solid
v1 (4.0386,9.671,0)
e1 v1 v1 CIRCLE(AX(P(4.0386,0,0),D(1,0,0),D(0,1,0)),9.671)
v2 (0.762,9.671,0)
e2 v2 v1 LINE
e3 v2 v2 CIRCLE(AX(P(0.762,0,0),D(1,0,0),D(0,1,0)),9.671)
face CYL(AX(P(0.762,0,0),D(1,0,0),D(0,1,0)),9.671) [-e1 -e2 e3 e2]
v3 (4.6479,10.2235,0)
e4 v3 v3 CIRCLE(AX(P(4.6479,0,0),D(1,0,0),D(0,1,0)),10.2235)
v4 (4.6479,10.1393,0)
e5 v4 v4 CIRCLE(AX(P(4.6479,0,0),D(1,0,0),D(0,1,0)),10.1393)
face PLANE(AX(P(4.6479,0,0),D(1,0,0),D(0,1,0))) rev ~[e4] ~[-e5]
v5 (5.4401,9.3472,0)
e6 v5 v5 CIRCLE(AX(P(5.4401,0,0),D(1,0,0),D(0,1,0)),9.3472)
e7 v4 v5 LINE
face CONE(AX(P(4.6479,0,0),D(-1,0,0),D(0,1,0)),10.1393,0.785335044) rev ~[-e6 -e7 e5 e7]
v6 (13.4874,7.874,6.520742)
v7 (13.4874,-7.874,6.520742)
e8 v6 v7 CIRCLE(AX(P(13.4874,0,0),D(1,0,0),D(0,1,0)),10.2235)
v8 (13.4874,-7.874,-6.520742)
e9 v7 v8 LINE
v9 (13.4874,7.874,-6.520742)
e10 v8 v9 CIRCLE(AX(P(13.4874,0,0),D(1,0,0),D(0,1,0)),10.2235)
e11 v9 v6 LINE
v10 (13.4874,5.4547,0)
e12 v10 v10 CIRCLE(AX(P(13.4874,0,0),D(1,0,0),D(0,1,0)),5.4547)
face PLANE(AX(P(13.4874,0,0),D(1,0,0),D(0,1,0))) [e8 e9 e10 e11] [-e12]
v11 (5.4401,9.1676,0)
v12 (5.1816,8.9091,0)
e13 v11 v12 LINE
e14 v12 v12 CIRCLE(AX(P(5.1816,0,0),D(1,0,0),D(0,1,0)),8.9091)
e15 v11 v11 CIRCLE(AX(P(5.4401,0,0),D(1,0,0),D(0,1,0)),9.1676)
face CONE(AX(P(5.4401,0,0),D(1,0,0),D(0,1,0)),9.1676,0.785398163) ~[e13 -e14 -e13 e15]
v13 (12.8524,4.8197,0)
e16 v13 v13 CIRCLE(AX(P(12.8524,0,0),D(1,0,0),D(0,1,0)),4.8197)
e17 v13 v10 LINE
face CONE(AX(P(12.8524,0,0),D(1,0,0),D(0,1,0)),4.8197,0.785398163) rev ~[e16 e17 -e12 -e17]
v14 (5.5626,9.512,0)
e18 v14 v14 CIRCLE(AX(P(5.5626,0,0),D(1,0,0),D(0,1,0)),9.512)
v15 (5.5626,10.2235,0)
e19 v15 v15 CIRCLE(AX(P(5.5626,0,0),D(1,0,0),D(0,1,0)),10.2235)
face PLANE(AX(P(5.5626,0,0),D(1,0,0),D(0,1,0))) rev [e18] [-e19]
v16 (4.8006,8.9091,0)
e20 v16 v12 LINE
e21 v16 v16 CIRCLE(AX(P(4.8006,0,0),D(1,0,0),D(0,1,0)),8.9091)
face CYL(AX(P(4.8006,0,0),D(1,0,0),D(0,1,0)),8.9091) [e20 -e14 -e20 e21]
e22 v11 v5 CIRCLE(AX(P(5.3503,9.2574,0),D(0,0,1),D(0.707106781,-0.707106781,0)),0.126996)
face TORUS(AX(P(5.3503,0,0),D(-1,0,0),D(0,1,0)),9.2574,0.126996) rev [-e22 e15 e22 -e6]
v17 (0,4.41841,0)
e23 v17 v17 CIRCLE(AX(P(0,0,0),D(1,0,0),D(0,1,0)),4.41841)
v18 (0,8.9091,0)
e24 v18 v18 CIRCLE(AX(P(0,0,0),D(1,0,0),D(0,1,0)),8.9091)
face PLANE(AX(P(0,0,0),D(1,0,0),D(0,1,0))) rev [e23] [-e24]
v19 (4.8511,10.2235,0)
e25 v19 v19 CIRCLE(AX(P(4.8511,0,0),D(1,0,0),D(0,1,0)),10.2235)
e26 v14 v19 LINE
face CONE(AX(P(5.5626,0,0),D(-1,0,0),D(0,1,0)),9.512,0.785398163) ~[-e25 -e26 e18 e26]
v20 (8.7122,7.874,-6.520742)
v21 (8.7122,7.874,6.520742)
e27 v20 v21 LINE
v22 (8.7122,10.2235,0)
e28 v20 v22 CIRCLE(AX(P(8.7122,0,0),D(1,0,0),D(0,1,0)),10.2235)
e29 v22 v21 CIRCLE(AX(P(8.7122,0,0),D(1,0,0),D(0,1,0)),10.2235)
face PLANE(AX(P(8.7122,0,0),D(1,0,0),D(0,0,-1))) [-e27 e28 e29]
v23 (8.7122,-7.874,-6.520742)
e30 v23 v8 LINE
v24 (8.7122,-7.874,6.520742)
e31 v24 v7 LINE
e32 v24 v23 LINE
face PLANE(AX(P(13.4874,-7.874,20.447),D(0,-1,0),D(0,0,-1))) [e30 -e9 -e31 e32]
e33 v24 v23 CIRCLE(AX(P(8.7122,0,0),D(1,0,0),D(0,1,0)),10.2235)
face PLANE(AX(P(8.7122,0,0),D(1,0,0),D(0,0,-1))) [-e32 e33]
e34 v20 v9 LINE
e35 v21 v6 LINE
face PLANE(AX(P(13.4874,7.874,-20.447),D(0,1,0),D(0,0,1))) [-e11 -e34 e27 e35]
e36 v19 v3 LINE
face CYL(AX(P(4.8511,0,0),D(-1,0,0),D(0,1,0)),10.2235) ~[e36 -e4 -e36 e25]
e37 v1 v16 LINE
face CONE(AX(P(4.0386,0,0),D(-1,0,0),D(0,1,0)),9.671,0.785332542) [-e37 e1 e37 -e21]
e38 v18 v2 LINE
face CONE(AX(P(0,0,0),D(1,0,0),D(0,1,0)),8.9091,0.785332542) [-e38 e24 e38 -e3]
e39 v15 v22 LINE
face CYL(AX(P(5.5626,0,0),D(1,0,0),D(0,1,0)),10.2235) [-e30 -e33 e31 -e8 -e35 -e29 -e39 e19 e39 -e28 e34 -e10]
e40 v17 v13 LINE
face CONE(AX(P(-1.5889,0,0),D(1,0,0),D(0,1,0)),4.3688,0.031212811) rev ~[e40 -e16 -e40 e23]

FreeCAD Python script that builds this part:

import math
import FreeCAD as App
import Part
import Sketcher
Q = App.Units.Quantity


def add_polygon(sketch, points):
    """Adds a closed chain of lines whose ends are joined by coincident constraints."""
    first, n = sketch.GeometryCount, len(points)
    for a, b in zip(points, points[1:] + points[:1]):
        sketch.addGeometry(Part.LineSegment(App.Vector(*a, 0), App.Vector(*b, 0)), False)
    for i in range(n):
        sketch.addConstraint(Sketcher.Constraint("Coincident", first + i, 2, first + (i + 1) % n, 1))

doc = App.newDocument("Part")
body = doc.addObject("PartDesign::Body", "Body")

sketch1 = body.newObject("Sketcher::SketchObject", "Sketch")
sketch1.AttachmentSupport = (doc.getObject("XY_Plane"), [""])
sketch1.MapMode = "FlatFace"
add_polygon(sketch1, [(0, 0), (13.4874, 0), (13.4874, 10.2235), (5.5626, 10.2235), (5.5626, 8.9091), (4.8006, 8.9091), (4.0386, 9.671), (0.762, 9.671), (0, 8.9091)])
sketch1.addConstraint(Sketcher.Constraint("Horizontal", 0))
sketch1.addConstraint(Sketcher.Constraint("Vertical", 1))
sketch1.addConstraint(Sketcher.Constraint("Horizontal", 2))
sketch1.addConstraint(Sketcher.Constraint("Vertical", 3))
sketch1.addConstraint(Sketcher.Constraint("Horizontal", 4))
sketch1.addConstraint(Sketcher.Constraint("Horizontal", 6))
sketch1.addConstraint(Sketcher.Constraint("Vertical", 8))
sketch1.addConstraint(Sketcher.Constraint("Coincident", 8, 2, -1, 1))
sketch1.addConstraint(Sketcher.Constraint("Perpendicular", 5, 7))
sketch1.addConstraint(Sketcher.Constraint("Horizontal", 4, 2, 7, 2))
sketch1.addConstraint(Sketcher.Constraint("Equal", 5, 7))
sketch1.addConstraint(Sketcher.Constraint("DistanceX", 4, 2, 4, 1, Q("0.03 in")))
sketch1.addConstraint(Sketcher.Constraint("DistanceX", 0, 1, 0, 2, Q("0.531 in")))
sketch1.addConstraint(Sketcher.Constraint("DistanceX", 2, 2, 2, 1, Q("0.312 in")))
sketch1.addConstraint(Sketcher.Constraint("DistanceX", 6, 2, 6, 1, Q("0.129 in")))
sketch1.addConstraint(Sketcher.Constraint("DistanceY", 1, 1, 1, 2, Q("0.4025 in")))
sketch1.addConstraint(Sketcher.Constraint("DistanceY", 3, 2, 3, 1, 1.3144))
revolution = body.newObject("PartDesign::Revolution", "Revolution")
revolution.Profile = sketch1
revolution.ReferenceAxis = (sketch1, ["H_Axis"])
revolution.Angle = 360

sketch2 = body.newObject("Sketcher::SketchObject", "Sketch001")
sketch2.AttachmentSupport = (doc.getObject("XY_Plane"), [""])
sketch2.MapMode = "FlatFace"
add_polygon(sketch2, [(0, 0), (13.4874, 0), (13.4874, 5.4547), (12.8524, 4.8197), (-1.5889, 4.3688), (0, 4.3688)])
sketch2.addConstraint(Sketcher.Constraint("Horizontal", 0))
sketch2.addConstraint(Sketcher.Constraint("Vertical", 1))
sketch2.addConstraint(Sketcher.Constraint("Horizontal", 4))
sketch2.addConstraint(Sketcher.Constraint("Vertical", 5))
sketch2.addConstraint(Sketcher.Constraint("Coincident", 5, 2, -1, 1))
sketch2.addConstraint(Sketcher.Constraint("Angle", 2, Q("-135 deg")))
sketch2.addConstraint(Sketcher.Constraint("DistanceX", 0, 1, 0, 2, Q("0.531 in")))
sketch2.addConstraint(Sketcher.Constraint("DistanceY", 5, 2, 5, 1, Q("0.172 in")))
sketch2.addConstraint(Sketcher.Constraint("DistanceX", -1, 1, 2, 2, Q("0.506 in")))
sketch2.addConstraint(Sketcher.Constraint("DistanceX", 4, 1, 4, 2, 1.589))
sketch2.addConstraint(Sketcher.Constraint("DistanceY", 1, 1, 1, 2, 5.4547))
groove = body.newObject("PartDesign::Groove", "Groove")
groove.Profile = sketch2
groove.ReferenceAxis = (sketch2, ["H_Axis"])
groove.Angle = 360

sketch3 = body.newObject("Sketcher::SketchObject", "Sketch002")
sketch3.AttachmentSupport = (doc.getObject("YZ_Plane"), [""])
sketch3.MapMode = "FlatFace"
sketch3.AttachmentOffset = App.Placement(App.Vector(0, 0, 0.531 * 25.4), App.Rotation())
add_polygon(sketch3, [(20.447, -40.894), (20.447, 40.894), (-20.447, 40.894), (-20.447, -40.894)])
add_polygon(sketch3, [(-7.874, 20.447), (7.874, 20.447), (7.874, -20.447), (-7.874, -20.447)])
sketch3.addConstraint(Sketcher.Constraint("Vertical", 0))
sketch3.addConstraint(Sketcher.Constraint("Horizontal", 1))
sketch3.addConstraint(Sketcher.Constraint("Vertical", 2))
sketch3.addConstraint(Sketcher.Constraint("Horizontal", 3))
sketch3.addConstraint(Sketcher.Constraint("Horizontal", 4))
sketch3.addConstraint(Sketcher.Constraint("Vertical", 5))
sketch3.addConstraint(Sketcher.Constraint("Horizontal", 6))
sketch3.addConstraint(Sketcher.Constraint("Vertical", 7))
sketch3.addConstraint(Sketcher.Constraint("Symmetric", 0, 2, 2, 2, -1, 1))
sketch3.addConstraint(Sketcher.Constraint("Symmetric", 4, 2, 6, 2, -1, 1))
sketch3.addConstraint(Sketcher.Constraint("Equal", 3, 5))
sketch3.addConstraint(Sketcher.Constraint("DistanceX", 1, 2, 1, 1, Q("1.61 in")))
sketch3.addConstraint(Sketcher.Constraint("DistanceX", 4, 1, 4, 2, Q("0.62 in")))
sketch3.addConstraint(Sketcher.Constraint("DistanceY", 0, 1, 0, 2, Q("3.22 in")))
pocket1 = body.newObject("PartDesign::Pocket", "Pocket")
pocket1.Profile = sketch3
pocket1.Length = Q("0.188 in")

sketch4 = body.newObject("Sketcher::SketchObject", "Sketch003")
sketch4.AttachmentSupport = (doc.getObject("XY_Plane"), [""])
sketch4.MapMode = "FlatFace"
sketch4.addGeometry(Part.LineSegment(App.Vector(4.6479, 10.2235, 0), App.Vector(4.6479, 10.1393, 0)), False)
sketch4.addGeometry(Part.LineSegment(App.Vector(4.6479, 10.1393, 0), App.Vector(5.4401, 9.3472, 0)), False)
sketch4.addGeometry(Part.ArcOfCircle(Part.Circle(App.Vector(5.3503, 9.2574, 0), App.Vector(0, 0, 1), 0.126996), math.radians(-45), math.radians(45)), False)
sketch4.addGeometry(Part.LineSegment(App.Vector(5.4401, 9.1676, 0), App.Vector(5.1816, 8.9091, 0)), False)
sketch4.addGeometry(Part.LineSegment(App.Vector(5.1816, 8.9091, 0), App.Vector(4.8006, 8.9091, 0)), False)
sketch4.addGeometry(Part.LineSegment(App.Vector(4.8006, 8.9091, 0), App.Vector(4.8006, 8.655, 0)), False)
sketch4.addGeometry(Part.LineSegment(App.Vector(4.8006, 8.655, 0), App.Vector(5.5626, 8.655, 0)), False)
sketch4.addGeometry(Part.LineSegment(App.Vector(5.5626, 8.655, 0), App.Vector(5.5626, 9.512, 0)), False)
sketch4.addGeometry(Part.LineSegment(App.Vector(5.5626, 9.512, 0), App.Vector(4.8511, 10.2235, 0)), False)
sketch4.addGeometry(Part.LineSegment(App.Vector(4.8511, 10.2235, 0), App.Vector(4.6479, 10.2235, 0)), False)
sketch4.addConstraint(Sketcher.Constraint("Coincident", 0, 2, 1, 1))
sketch4.addConstraint(Sketcher.Constraint("Tangent", 1, 2, 2, 2))
sketch4.addConstraint(Sketcher.Constraint("Tangent", 2, 1, 3, 1))
sketch4.addConstraint(Sketcher.Constraint("Coincident", 3, 2, 4, 1))
sketch4.addConstraint(Sketcher.Constraint("Coincident", 4, 2, 5, 1))
sketch4.addConstraint(Sketcher.Constraint("Coincident", 5, 2, 6, 1))
sketch4.addConstraint(Sketcher.Constraint("Coincident", 6, 2, 7, 1))
sketch4.addConstraint(Sketcher.Constraint("Coincident", 7, 2, 8, 1))
sketch4.addConstraint(Sketcher.Constraint("Coincident", 8, 2, 9, 1))
sketch4.addConstraint(Sketcher.Constraint("Coincident", 9, 2, 0, 1))
sketch4.addConstraint(Sketcher.Constraint("Vertical", 0))
sketch4.addConstraint(Sketcher.Constraint("Horizontal", 4))
sketch4.addConstraint(Sketcher.Constraint("Vertical", 5))
sketch4.addConstraint(Sketcher.Constraint("Horizontal", 6))
sketch4.addConstraint(Sketcher.Constraint("Vertical", 7))
sketch4.addConstraint(Sketcher.Constraint("Horizontal", 9))
sketch4.addConstraint(Sketcher.Constraint("Perpendicular", 1, 3))
sketch4.addConstraint(Sketcher.Constraint("Perpendicular", 3, 8))
sketch4.addConstraint(Sketcher.Constraint("Vertical", 1, 2, 2, 1))
sketch4.addConstraint(Sketcher.Constraint("Radius", 2, Q("0.005 in")))
sketch4.addConstraint(Sketcher.Constraint("DistanceX", 6, 1, 6, 2, Q("0.03 in")))
sketch4.addConstraint(Sketcher.Constraint("DistanceY", 5, 2, 5, 1, Q("0.01 in")))
sketch4.addConstraint(Sketcher.Constraint("DistanceX", 4, 2, 4, 1, Q("0.015 in")))
sketch4.addConstraint(Sketcher.Constraint("DistanceX", 9, 2, 9, 1, Q("0.008 in")))
sketch4.addConstraint(Sketcher.Constraint("DistanceX", -1, 1, 0, 2, Q("0.183 in")))
sketch4.addConstraint(Sketcher.Constraint("DistanceY", -1, 1, 1, 2, Q("0.368 in")))
sketch4.addConstraint(Sketcher.Constraint("DistanceX", -1, 1, 3, 2, Q("0.204 in")))
sketch4.addConstraint(Sketcher.Constraint("Distance", 1, Q("0.0441 in")))
sketch4.addConstraint(Sketcher.Constraint("DistanceY", 0, 2, 0, 1, 0.0842))
revolution2 = body.newObject("PartDesign::Revolution", "Revolution001")
revolution2.Profile = sketch4
revolution2.ReferenceAxis = (sketch4, ["H_Axis"])
revolution2.Angle = 360

doc.recompute()
